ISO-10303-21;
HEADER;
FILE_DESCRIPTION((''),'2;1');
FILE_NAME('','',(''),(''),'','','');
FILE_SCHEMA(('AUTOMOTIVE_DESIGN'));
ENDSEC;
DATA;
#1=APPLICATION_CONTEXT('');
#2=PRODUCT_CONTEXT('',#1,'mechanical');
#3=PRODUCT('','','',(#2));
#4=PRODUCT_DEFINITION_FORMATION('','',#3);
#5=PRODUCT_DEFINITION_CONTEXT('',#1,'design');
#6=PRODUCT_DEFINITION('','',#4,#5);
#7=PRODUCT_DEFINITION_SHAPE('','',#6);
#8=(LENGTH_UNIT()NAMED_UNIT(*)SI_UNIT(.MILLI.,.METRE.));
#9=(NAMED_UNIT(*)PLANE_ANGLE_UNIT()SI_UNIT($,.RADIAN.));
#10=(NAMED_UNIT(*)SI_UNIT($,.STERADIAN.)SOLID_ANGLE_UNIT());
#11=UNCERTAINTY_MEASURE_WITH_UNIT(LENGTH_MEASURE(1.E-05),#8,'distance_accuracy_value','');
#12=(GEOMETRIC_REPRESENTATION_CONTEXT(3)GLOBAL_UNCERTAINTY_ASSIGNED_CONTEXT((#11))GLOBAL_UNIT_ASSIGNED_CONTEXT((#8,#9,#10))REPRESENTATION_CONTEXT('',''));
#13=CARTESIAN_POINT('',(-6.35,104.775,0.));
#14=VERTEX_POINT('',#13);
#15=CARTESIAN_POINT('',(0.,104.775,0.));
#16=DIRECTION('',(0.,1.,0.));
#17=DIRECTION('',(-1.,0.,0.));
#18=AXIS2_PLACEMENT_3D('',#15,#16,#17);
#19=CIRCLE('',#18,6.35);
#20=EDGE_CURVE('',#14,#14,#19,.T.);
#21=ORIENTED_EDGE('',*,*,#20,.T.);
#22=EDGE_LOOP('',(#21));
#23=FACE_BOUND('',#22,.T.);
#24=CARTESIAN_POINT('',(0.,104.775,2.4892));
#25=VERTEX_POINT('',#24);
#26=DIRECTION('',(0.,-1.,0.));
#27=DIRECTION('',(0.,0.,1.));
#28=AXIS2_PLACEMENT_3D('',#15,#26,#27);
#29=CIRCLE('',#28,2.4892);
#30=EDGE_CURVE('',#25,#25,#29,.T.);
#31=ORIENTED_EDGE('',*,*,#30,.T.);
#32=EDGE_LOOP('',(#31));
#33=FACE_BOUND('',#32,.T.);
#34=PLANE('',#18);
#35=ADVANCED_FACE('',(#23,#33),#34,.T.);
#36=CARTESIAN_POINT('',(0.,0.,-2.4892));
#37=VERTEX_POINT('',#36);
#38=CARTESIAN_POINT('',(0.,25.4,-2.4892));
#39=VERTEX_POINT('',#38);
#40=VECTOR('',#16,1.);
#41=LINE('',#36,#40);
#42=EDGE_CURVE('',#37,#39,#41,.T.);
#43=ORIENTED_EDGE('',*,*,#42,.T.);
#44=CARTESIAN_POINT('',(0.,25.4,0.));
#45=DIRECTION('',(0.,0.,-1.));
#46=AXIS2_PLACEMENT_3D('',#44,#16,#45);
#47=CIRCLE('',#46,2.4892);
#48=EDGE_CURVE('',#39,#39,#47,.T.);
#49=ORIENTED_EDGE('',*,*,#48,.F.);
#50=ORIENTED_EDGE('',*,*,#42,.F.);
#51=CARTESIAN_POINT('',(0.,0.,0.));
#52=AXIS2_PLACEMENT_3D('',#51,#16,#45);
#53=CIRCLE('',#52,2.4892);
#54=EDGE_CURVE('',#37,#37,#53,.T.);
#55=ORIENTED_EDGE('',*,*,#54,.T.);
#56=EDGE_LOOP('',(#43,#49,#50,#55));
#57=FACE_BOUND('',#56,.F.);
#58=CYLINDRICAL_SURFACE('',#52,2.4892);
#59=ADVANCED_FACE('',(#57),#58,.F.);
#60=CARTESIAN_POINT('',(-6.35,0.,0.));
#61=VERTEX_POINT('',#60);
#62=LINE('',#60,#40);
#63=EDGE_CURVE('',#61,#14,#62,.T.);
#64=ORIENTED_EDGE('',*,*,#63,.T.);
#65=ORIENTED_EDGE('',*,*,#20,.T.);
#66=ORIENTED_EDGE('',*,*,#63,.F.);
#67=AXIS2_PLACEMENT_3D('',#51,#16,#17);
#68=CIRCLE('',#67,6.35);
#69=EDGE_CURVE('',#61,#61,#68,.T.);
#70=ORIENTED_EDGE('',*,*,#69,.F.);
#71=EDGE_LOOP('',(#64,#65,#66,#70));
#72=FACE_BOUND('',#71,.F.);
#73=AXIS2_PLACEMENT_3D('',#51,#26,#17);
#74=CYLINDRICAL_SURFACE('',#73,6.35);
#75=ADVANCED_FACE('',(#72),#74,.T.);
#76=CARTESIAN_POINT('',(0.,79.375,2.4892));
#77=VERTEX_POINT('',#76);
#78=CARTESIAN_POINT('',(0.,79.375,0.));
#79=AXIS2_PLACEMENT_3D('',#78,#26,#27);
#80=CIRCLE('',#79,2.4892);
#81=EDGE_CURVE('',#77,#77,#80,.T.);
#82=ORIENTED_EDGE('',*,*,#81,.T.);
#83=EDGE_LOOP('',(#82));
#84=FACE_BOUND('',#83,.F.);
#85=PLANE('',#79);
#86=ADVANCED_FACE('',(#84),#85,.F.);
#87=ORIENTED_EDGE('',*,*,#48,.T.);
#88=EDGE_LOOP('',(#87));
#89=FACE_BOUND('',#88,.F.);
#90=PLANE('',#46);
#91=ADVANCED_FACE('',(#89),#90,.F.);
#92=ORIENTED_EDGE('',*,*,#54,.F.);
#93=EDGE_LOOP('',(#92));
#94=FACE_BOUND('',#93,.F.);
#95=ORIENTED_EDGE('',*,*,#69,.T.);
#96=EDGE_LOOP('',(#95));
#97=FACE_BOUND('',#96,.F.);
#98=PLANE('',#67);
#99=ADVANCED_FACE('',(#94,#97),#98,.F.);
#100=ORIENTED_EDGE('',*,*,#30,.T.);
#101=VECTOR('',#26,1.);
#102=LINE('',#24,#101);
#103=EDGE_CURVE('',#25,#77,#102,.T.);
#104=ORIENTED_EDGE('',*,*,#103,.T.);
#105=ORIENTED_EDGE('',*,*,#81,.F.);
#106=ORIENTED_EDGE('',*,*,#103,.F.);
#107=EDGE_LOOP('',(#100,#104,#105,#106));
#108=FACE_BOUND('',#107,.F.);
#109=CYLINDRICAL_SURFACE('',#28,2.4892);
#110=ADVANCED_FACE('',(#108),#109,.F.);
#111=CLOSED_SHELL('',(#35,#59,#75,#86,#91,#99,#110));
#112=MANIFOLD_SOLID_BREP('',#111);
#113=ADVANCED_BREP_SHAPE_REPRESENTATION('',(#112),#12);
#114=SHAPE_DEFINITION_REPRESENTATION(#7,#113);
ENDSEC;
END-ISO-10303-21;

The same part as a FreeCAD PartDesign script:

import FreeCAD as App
import Part
import Sketcher
from FreeCAD import Vector
Q = App.Units.Quantity

doc = App.newDocument("Part")
params = doc.addObject("Spreadsheet::Sheet", "Params")
for row, (alias, value) in enumerate([
    ("sketch1_diameter", "0.5 in"),
    ("pad1_length", "4.125 in"),
    ("sketch2_diameter", "0.196 in"),
    ("hole_diameter", "0.196 in"),
    ("hole_depth", "1 in"),
    ("sketch3_diameter", "0.196 in"),
    ("hole2_diameter", "0.196 in"),
    ("hole2_depth", "1 in"),
], start=1):
    params.set(f"A{row}", alias)
    params.set(f"B{row}", "=" + value)
    params.setAlias(f"B{row}", alias)

body = doc.addObject("PartDesign::Body", "Body")

# Sketch on XZ plane
sketch1 = doc.addObject("Sketcher::SketchObject", "Sketch")
body.addObject(sketch1)
sketch1.AttachmentSupport = (doc.XZ_Plane, [""])
sketch1.MapMode = "FlatFace"
sketch1.addGeometry(Part.Circle(Vector(0, 0, 0), Vector(0, 0, 1), 6.35), False)
sketch1.addConstraint(Sketcher.Constraint("Coincident", 0, 3, -1, 1))
sketch1.addConstraint(Sketcher.Constraint("Diameter", 0, Q("0.5 in")))
sketch1.setExpression("Constraints[1]", "Params.sketch1_diameter")
pad1 = doc.addObject("PartDesign::Pad", "Pad")
body.addObject(pad1)
pad1.Profile = sketch1
pad1.setExpression("Length", "Params.pad1_length")
pad1.Reversed = True

# Sketch on XZ plane
sketch2 = doc.addObject("Sketcher::SketchObject", "Sketch001")
body.addObject(sketch2)
sketch2.AttachmentSupport = (doc.XZ_Plane, [""])
sketch2.MapMode = "FlatFace"
sketch2.addGeometry(Part.Circle(Vector(0, 0, 0), Vector(0, 0, 1), 2.4892), False)
sketch2.addConstraint(Sketcher.Constraint("Coincident", 0, 3, -1, 1))
sketch2.addConstraint(Sketcher.Constraint("Diameter", 0, Q("0.196 in")))
sketch2.setExpression("Constraints[1]", "Params.sketch2_diameter")
doc.recompute()
hole = doc.addObject("PartDesign::Hole", "Hole")
body.addObject(hole)
hole.Profile = sketch2
hole.ThreadType = "None"
hole.setExpression("Diameter", "Params.hole_diameter")
hole.DepthType = "Dimension"
hole.setExpression("Depth", "Params.hole_depth")
hole.DrillPoint = "Flat"

# Sketch on XZ plane
sketch3 = doc.addObject("Sketcher::SketchObject", "Sketch002")
body.addObject(sketch3)
sketch3.AttachmentSupport = (doc.XZ_Plane, [""])
sketch3.MapMode = "FlatFace"
sketch3.AttachmentOffset = App.Placement(Vector(0, 0, -4.125 * 25.4), App.Rotation())
sketch3.addGeometry(Part.Circle(Vector(0, 0, 0), Vector(0, 0, 1), 2.4892), False)
sketch3.addConstraint(Sketcher.Constraint("Coincident", 0, 3, -1, 1))
sketch3.addConstraint(Sketcher.Constraint("Diameter", 0, Q("0.196 in")))
sketch3.setExpression("Constraints[1]", "Params.sketch3_diameter")
doc.recompute()
hole2 = doc.addObject("PartDesign::Hole", "Hole001")
body.addObject(hole2)
hole2.Profile = sketch3
hole2.ThreadType = "None"
hole2.setExpression("Diameter", "Params.hole2_diameter")
hole2.DepthType = "Dimension"
hole2.setExpression("Depth", "Params.hole2_depth")
hole2.DrillPoint = "Flat"
hole2.Reversed = True

doc.recompute()
